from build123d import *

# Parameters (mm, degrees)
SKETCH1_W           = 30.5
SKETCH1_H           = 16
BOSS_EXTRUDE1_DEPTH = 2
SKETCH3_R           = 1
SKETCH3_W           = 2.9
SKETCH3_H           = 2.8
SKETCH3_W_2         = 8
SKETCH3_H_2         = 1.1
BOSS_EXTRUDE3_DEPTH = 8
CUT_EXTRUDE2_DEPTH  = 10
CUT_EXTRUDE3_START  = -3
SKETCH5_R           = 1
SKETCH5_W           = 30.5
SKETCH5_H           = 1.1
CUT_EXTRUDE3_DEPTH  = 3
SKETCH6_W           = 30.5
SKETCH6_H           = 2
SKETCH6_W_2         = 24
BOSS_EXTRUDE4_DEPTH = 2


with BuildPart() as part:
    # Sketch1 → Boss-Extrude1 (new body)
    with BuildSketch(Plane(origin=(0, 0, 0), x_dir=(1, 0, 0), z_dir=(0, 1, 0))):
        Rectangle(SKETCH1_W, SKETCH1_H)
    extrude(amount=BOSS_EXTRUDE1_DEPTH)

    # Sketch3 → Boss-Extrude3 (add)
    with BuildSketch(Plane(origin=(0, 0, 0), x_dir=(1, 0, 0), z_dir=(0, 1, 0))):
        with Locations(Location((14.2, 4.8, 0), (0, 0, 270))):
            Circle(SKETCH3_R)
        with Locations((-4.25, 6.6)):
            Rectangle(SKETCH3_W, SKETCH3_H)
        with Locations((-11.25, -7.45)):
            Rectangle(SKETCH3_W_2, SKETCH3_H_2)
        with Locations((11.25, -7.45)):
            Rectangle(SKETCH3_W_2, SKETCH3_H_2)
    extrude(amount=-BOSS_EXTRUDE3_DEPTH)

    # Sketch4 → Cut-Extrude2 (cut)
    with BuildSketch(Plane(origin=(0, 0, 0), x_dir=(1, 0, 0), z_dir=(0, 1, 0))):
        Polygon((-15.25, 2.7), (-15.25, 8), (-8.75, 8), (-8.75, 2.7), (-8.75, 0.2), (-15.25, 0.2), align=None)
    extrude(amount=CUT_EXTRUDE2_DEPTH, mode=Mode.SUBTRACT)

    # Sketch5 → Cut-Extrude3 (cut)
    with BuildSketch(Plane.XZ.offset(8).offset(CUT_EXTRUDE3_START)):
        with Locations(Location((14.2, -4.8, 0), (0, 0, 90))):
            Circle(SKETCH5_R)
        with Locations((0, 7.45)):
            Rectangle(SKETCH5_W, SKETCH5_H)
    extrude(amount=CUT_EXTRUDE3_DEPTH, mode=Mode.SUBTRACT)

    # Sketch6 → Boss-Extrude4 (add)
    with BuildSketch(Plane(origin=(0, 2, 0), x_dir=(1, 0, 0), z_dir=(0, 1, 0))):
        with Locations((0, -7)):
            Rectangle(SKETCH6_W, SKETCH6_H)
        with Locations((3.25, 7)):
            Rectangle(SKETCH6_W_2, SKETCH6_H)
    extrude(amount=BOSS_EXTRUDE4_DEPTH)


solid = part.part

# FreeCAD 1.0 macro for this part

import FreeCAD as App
import Part
import Sketcher

V = App.Vector

doc = App.newDocument("Part")
body = doc.addObject("PartDesign::Body", "Body")

sketch1 = body.newObject("Sketcher::SketchObject", "Sketch")
sketch1.AttachmentSupport = (doc.getObject("XZ_Plane"), [""])
sketch1.MapMode = "FlatFace"
sketch1.addGeometry(Part.LineSegment(V(-15, -8, 0), V(-15, 8, 0)), False)
sketch1.addGeometry(Part.LineSegment(V(-15, 8, 0), V(15, 8, 0)), False)
sketch1.addGeometry(Part.LineSegment(V(15, 8, 0), V(15, -8, 0)), False)
sketch1.addGeometry(Part.LineSegment(V(15, -8, 0), V(-15, -8, 0)), False)
sketch1.addConstraint(Sketcher.Constraint("Coincident", 0, 2, 1, 1))
sketch1.addConstraint(Sketcher.Constraint("Coincident", 1, 2, 2, 1))
sketch1.addConstraint(Sketcher.Constraint("Coincident", 2, 2, 3, 1))
sketch1.addConstraint(Sketcher.Constraint("Coincident", 3, 2, 0, 1))
sketch1.addConstraint(Sketcher.Constraint("Vertical", 0))
sketch1.addConstraint(Sketcher.Constraint("Horizontal", 1))
sketch1.addConstraint(Sketcher.Constraint("Vertical", 2))
sketch1.addConstraint(Sketcher.Constraint("Horizontal", 3))
sketch1.addConstraint(Sketcher.Constraint("Symmetric", 0, 2, 2, 2, -1, 1))
sketch1.addConstraint(Sketcher.Constraint("DistanceY", 0, 1, 0, 2, 16.0))
sketch1.addConstraint(Sketcher.Constraint("DistanceX", 1, 1, 1, 2, 30.5))
pad1 = body.newObject("PartDesign::Pad", "Pad")
pad1.Profile = sketch1
pad1.Length = 2
pad1.Reversed = True

sketch2 = body.newObject("Sketcher::SketchObject", "Sketch001")
sketch2.AttachmentSupport = (doc.getObject("XZ_Plane"), [""])
sketch2.MapMode = "FlatFace"
sketch2.addGeometry(Part.Circle(V(14.2, -4.8, 0), V(0, 0, 1), 1), False)
sketch2.addGeometry(Part.LineSegment(V(-5.7, -8, 0), V(-5.7, -5.2, 0)), False)
sketch2.addGeometry(Part.LineSegment(V(-5.7, -5.2, 0), V(-2.8, -5.2, 0)), False)
sketch2.addGeometry(Part.LineSegment(V(-2.8, -5.2, 0), V(-2.8, -8, 0)), False)
sketch2.addGeometry(Part.LineSegment(V(-2.8, -8, 0), V(-5.7, -8, 0)), False)
sketch2.addGeometry(Part.LineSegment(V(-15.2, 6.9, 0), V(-15.2, 8, 0)), False)
sketch2.addGeometry(Part.LineSegment(V(-15.2, 8, 0), V(-7.2, 8, 0)), False)
sketch2.addGeometry(Part.LineSegment(V(-7.2, 8, 0), V(-7.2, 6.9, 0)), False)
sketch2.addGeometry(Part.LineSegment(V(-7.2, 6.9, 0), V(-15.2, 6.9, 0)), False)
sketch2.addGeometry(Part.LineSegment(V(7.2, 6.9, 0), V(7.2, 8, 0)), False)
sketch2.addGeometry(Part.LineSegment(V(7.2, 8, 0), V(15.2, 8, 0)), False)
sketch2.addGeometry(Part.LineSegment(V(15.2, 8, 0), V(15.2, 6.9, 0)), False)
sketch2.addGeometry(Part.LineSegment(V(15.2, 6.9, 0), V(7.2, 6.9, 0)), False)
sketch2.addConstraint(Sketcher.Constraint("Coincident", 1, 2, 2, 1))
sketch2.addConstraint(Sketcher.Constraint("Coincident", 2, 2, 3, 1))
sketch2.addConstraint(Sketcher.Constraint("Coincident", 3, 2, 4, 1))
sketch2.addConstraint(Sketcher.Constraint("Coincident", 4, 2, 1, 1))
sketch2.addConstraint(Sketcher.Constraint("Coincident", 5, 2, 6, 1))
sketch2.addConstraint(Sketcher.Constraint("Coincident", 6, 2, 7, 1))
sketch2.addConstraint(Sketcher.Constraint("Coincident", 7, 2, 8, 1))
sketch2.addConstraint(Sketcher.Constraint("Coincident", 8, 2, 5, 1))
sketch2.addConstraint(Sketcher.Constraint("Coincident", 9, 2, 10, 1))
sketch2.addConstraint(Sketcher.Constraint("Coincident", 10, 2, 11, 1))
sketch2.addConstraint(Sketcher.Constraint("Coincident", 11, 2, 12, 1))
sketch2.addConstraint(Sketcher.Constraint("Coincident", 12, 2, 9, 1))
sketch2.addConstraint(Sketcher.Constraint("Vertical", 1))
sketch2.addConstraint(Sketcher.Constraint("Horizontal", 2))
sketch2.addConstraint(Sketcher.Constraint("Vertical", 3))
sketch2.addConstraint(Sketcher.Constraint("Horizontal", 4))
sketch2.addConstraint(Sketcher.Constraint("Vertical", 5))
sketch2.addConstraint(Sketcher.Constraint("Horizontal", 6))
sketch2.addConstraint(Sketcher.Constraint("Vertical", 7))
sketch2.addConstraint(Sketcher.Constraint("Horizontal", 8))
sketch2.addConstraint(Sketcher.Constraint("Vertical", 9))
sketch2.addConstraint(Sketcher.Constraint("Horizontal", 10))
sketch2.addConstraint(Sketcher.Constraint("Vertical", 11))
sketch2.addConstraint(Sketcher.Constraint("Horizontal", 12))
sketch2.addConstraint(Sketcher.Constraint("Symmetric", 6, 2, 9, 2, -2))
sketch2.addConstraint(Sketcher.Constraint("Symmetric", 8, 2, 11, 2, -2))
sketch2.addConstraint(Sketcher.Constraint("Diameter", 0, 2.0))
sketch2.addConstraint(Sketcher.Constraint("DistanceX", 6, 1, 6, 2, 8.0))
sketch2.addConstraint(Sketcher.Constraint("DistanceX", 2, 1, 2, 2, 2.9))
sketch2.addConstraint(Sketcher.Constraint("DistanceY", 1, 1, 1, 2, 2.8))
sketch2.addConstraint(Sketcher.Constraint("DistanceY", 5, 1, 5, 2, 1.1))
sketch2.addConstraint(Sketcher.Constraint("DistanceY", 3, 2, -1, 1, 8.0))
sketch2.addConstraint(Sketcher.Constraint("DistanceY", -1, 1, 5, 2, 8.0))
sketch2.addConstraint(Sketcher.Constraint("DistanceX", 2, 2, 0, 3, 17.0))
sketch2.addConstraint(Sketcher.Constraint("DistanceX", -1, 1, 0, 3, 14.2))
sketch2.addConstraint(Sketcher.Constraint("DistanceY", 0, 3, -1, 1, 4.8))
sketch2.addConstraint(Sketcher.Constraint("DistanceX", 6, 2, 9, 2, 14.5))
pad2 = body.newObject("PartDesign::Pad", "Pad001")
pad2.Profile = sketch2
pad2.Length = 8

sketch3 = body.newObject("Sketcher::SketchObject", "Sketch002")
sketch3.AttachmentSupport = (doc.getObject("XZ_Plane"), [""])
sketch3.MapMode = "FlatFace"
sketch3.addGeometry(Part.LineSegment(V(-15, -8, 0), V(-15, 0, 0)), False)
sketch3.addGeometry(Part.LineSegment(V(-15, 0, 0), V(-9, 0, 0)), False)
sketch3.addGeometry(Part.LineSegment(V(-9, 0, 0), V(-9, -8, 0)), False)
sketch3.addGeometry(Part.LineSegment(V(-9, -8, 0), V(-15, -8, 0)), False)
sketch3.addConstraint(Sketcher.Constraint("Coincident", 0, 2, 1, 1))
sketch3.addConstraint(Sketcher.Constraint("Coincident", 1, 2, 2, 1))
sketch3.addConstraint(Sketcher.Constraint("Coincident", 2, 2, 3, 1))
sketch3.addConstraint(Sketcher.Constraint("Coincident", 3, 2, 0, 1))
sketch3.addConstraint(Sketcher.Constraint("Vertical", 0))
sketch3.addConstraint(Sketcher.Constraint("Horizontal", 1))
sketch3.addConstraint(Sketcher.Constraint("Vertical", 2))
sketch3.addConstraint(Sketcher.Constraint("Horizontal", 3))
sketch3.addConstraint(Sketcher.Constraint("DistanceX", 1, 1, 1, 2, 6.5))
sketch3.addConstraint(Sketcher.Constraint("DistanceY", 0, 1, 0, 2, 7.8))
sketch3.addConstraint(Sketcher.Constraint("DistanceY", 2, 2, -1, 1, 8.0))
sketch3.addConstraint(Sketcher.Constraint("DistanceX", 0, 2, -1, 1, 15.25))
pocket1 = body.newObject("PartDesign::Pocket", "Pocket")
pocket1.Profile = sketch3
pocket1.Length = 10

sketch4 = body.newObject("Sketcher::SketchObject", "Sketch003")
sketch4.AttachmentSupport = (doc.getObject("XZ_Plane"), [""])
sketch4.MapMode = "FlatFace"
sketch4.AttachmentOffset = App.Placement(V(0, 0, 5), App.Rotation())
sketch4.addGeometry(Part.Circle(V(14.2, -4.8, 0), V(0, 0, 1), 1), False)
sketch4.addGeometry(Part.LineSegment(V(-15.2, 8, 0), V(-15.2, 6.9, 0)), False)
sketch4.addGeometry(Part.LineSegment(V(-15.2, 6.9, 0), V(15.2, 6.9, 0)), False)
sketch4.addGeometry(Part.LineSegment(V(15.2, 6.9, 0), V(15.2, 8, 0)), False)
sketch4.addGeometry(Part.LineSegment(V(15.2, 8, 0), V(-15.2, 8, 0)), False)
sketch4.addConstraint(Sketcher.Constraint("Coincident", 1, 2, 2, 1))
sketch4.addConstraint(Sketcher.Constraint("Coincident", 2, 2, 3, 1))
sketch4.addConstraint(Sketcher.Constraint("Coincident", 3, 2, 4, 1))
sketch4.addConstraint(Sketcher.Constraint("Coincident", 4, 2, 1, 1))
sketch4.addConstraint(Sketcher.Constraint("Vertical", 1))
sketch4.addConstraint(Sketcher.Constraint("Horizontal", 2))
sketch4.addConstraint(Sketcher.Constraint("Vertical", 3))
sketch4.addConstraint(Sketcher.Constraint("Horizontal", 4))
sketch4.addConstraint(Sketcher.Constraint("Diameter", 0, 2.0))
sketch4.addConstraint(Sketcher.Constraint("DistanceX", 2, 1, 2, 2, 30.5))
sketch4.addConstraint(Sketcher.Constraint("DistanceY", 1, 2, 1, 1, 1.1))
sketch4.addConstraint(Sketcher.Constraint("DistanceY", -1, 1, 3, 2, 8.0))
sketch4.addConstraint(Sketcher.Constraint("DistanceX", -1, 1, 0, 3, 14.2))
sketch4.addConstraint(Sketcher.Constraint("DistanceY", 0, 3, -1, 1, 4.8))
sketch4.addConstraint(Sketcher.Constraint("DistanceX", 1, 2, -1, 1, 15.25))
pocket2 = body.newObject("PartDesign::Pocket", "Pocket001")
pocket2.Profile = sketch4
pocket2.Length = 3
pocket2.Reversed = True

sketch5 = body.newObject("Sketcher::SketchObject", "Sketch004")
sketch5.AttachmentSupport = (doc.getObject("XZ_Plane"), [""])
sketch5.MapMode = "FlatFace"
sketch5.AttachmentOffset = App.Placement(V(0, 0, -2), App.Rotation())
sketch5.addGeometry(Part.LineSegment(V(-15.2, 6, 0), V(-15.2, 8, 0)), False)
sketch5.addGeometry(Part.LineSegment(V(-15.2, 8, 0), V(15.2, 8, 0)), False)
sketch5.addGeometry(Part.LineSegment(V(15.2, 8, 0), V(15.2, 6, 0)), False)
sketch5.addGeometry(Part.LineSegment(V(15.2, 6, 0), V(-15.2, 6, 0)), False)
sketch5.addGeometry(Part.LineSegment(V(-8.8, -8, 0), V(-8.8, -6, 0)), False)
sketch5.addGeometry(Part.LineSegment(V(-8.8, -6, 0), V(15.2, -6, 0)), False)
sketch5.addGeometry(Part.LineSegment(V(15.2, -6, 0), V(15.2, -8, 0)), False)
sketch5.addGeometry(Part.LineSegment(V(15.2, -8, 0), V(-8.8, -8, 0)), False)
sketch5.addConstraint(Sketcher.Constraint("Coincident", 0, 2, 1, 1))
sketch5.addConstraint(Sketcher.Constraint("Coincident", 1, 2, 2, 1))
sketch5.addConstraint(Sketcher.Constraint("Coincident", 2, 2, 3, 1))
sketch5.addConstraint(Sketcher.Constraint("Coincident", 3, 2, 0, 1))
sketch5.addConstraint(Sketcher.Constraint("Coincident", 4, 2, 5, 1))
sketch5.addConstraint(Sketcher.Constraint("Coincident", 5, 2, 6, 1))
sketch5.addConstraint(Sketcher.Constraint("Coincident", 6, 2, 7, 1))
sketch5.addConstraint(Sketcher.Constraint("Coincident", 7, 2, 4, 1))
sketch5.addConstraint(Sketcher.Constraint("Vertical", 0))
sketch5.addConstraint(Sketcher.Constraint("Horizontal", 1))
sketch5.addConstraint(Sketcher.Constraint("Vertical", 2))
sketch5.addConstraint(Sketcher.Constraint("Horizontal", 3))
sketch5.addConstraint(Sketcher.Constraint("Vertical", 4))
sketch5.addConstraint(Sketcher.Constraint("Horizontal", 5))
sketch5.addConstraint(Sketcher.Constraint("Vertical", 6))
sketch5.addConstraint(Sketcher.Constraint("Horizontal", 7))
sketch5.addConstraint(Sketcher.Constraint("Symmetric", 3, 2, 5, 2, -1, 1))
sketch5.addConstraint(Sketcher.Constraint("Symmetric", 1, 2, 6, 2, -1))
sketch5.addConstraint(Sketcher.Constraint("DistanceX", 5, 1, 5, 2, 24.0))
sketch5.addConstraint(Sketcher.Constraint("DistanceY", 0, 1, 0, 2, 2.0))
sketch5.addConstraint(Sketcher.Constraint("DistanceX", 1, 1, 1, 2, 30.5))
sketch5.addConstraint(Sketcher.Constraint("DistanceY", -1, 1, 0, 2, 8.0))
pad3 = body.newObject("PartDesign::Pad", "Pad002")
pad3.Profile = sketch5
pad3.Length = 2
pad3.Reversed = True

doc.recompute()
